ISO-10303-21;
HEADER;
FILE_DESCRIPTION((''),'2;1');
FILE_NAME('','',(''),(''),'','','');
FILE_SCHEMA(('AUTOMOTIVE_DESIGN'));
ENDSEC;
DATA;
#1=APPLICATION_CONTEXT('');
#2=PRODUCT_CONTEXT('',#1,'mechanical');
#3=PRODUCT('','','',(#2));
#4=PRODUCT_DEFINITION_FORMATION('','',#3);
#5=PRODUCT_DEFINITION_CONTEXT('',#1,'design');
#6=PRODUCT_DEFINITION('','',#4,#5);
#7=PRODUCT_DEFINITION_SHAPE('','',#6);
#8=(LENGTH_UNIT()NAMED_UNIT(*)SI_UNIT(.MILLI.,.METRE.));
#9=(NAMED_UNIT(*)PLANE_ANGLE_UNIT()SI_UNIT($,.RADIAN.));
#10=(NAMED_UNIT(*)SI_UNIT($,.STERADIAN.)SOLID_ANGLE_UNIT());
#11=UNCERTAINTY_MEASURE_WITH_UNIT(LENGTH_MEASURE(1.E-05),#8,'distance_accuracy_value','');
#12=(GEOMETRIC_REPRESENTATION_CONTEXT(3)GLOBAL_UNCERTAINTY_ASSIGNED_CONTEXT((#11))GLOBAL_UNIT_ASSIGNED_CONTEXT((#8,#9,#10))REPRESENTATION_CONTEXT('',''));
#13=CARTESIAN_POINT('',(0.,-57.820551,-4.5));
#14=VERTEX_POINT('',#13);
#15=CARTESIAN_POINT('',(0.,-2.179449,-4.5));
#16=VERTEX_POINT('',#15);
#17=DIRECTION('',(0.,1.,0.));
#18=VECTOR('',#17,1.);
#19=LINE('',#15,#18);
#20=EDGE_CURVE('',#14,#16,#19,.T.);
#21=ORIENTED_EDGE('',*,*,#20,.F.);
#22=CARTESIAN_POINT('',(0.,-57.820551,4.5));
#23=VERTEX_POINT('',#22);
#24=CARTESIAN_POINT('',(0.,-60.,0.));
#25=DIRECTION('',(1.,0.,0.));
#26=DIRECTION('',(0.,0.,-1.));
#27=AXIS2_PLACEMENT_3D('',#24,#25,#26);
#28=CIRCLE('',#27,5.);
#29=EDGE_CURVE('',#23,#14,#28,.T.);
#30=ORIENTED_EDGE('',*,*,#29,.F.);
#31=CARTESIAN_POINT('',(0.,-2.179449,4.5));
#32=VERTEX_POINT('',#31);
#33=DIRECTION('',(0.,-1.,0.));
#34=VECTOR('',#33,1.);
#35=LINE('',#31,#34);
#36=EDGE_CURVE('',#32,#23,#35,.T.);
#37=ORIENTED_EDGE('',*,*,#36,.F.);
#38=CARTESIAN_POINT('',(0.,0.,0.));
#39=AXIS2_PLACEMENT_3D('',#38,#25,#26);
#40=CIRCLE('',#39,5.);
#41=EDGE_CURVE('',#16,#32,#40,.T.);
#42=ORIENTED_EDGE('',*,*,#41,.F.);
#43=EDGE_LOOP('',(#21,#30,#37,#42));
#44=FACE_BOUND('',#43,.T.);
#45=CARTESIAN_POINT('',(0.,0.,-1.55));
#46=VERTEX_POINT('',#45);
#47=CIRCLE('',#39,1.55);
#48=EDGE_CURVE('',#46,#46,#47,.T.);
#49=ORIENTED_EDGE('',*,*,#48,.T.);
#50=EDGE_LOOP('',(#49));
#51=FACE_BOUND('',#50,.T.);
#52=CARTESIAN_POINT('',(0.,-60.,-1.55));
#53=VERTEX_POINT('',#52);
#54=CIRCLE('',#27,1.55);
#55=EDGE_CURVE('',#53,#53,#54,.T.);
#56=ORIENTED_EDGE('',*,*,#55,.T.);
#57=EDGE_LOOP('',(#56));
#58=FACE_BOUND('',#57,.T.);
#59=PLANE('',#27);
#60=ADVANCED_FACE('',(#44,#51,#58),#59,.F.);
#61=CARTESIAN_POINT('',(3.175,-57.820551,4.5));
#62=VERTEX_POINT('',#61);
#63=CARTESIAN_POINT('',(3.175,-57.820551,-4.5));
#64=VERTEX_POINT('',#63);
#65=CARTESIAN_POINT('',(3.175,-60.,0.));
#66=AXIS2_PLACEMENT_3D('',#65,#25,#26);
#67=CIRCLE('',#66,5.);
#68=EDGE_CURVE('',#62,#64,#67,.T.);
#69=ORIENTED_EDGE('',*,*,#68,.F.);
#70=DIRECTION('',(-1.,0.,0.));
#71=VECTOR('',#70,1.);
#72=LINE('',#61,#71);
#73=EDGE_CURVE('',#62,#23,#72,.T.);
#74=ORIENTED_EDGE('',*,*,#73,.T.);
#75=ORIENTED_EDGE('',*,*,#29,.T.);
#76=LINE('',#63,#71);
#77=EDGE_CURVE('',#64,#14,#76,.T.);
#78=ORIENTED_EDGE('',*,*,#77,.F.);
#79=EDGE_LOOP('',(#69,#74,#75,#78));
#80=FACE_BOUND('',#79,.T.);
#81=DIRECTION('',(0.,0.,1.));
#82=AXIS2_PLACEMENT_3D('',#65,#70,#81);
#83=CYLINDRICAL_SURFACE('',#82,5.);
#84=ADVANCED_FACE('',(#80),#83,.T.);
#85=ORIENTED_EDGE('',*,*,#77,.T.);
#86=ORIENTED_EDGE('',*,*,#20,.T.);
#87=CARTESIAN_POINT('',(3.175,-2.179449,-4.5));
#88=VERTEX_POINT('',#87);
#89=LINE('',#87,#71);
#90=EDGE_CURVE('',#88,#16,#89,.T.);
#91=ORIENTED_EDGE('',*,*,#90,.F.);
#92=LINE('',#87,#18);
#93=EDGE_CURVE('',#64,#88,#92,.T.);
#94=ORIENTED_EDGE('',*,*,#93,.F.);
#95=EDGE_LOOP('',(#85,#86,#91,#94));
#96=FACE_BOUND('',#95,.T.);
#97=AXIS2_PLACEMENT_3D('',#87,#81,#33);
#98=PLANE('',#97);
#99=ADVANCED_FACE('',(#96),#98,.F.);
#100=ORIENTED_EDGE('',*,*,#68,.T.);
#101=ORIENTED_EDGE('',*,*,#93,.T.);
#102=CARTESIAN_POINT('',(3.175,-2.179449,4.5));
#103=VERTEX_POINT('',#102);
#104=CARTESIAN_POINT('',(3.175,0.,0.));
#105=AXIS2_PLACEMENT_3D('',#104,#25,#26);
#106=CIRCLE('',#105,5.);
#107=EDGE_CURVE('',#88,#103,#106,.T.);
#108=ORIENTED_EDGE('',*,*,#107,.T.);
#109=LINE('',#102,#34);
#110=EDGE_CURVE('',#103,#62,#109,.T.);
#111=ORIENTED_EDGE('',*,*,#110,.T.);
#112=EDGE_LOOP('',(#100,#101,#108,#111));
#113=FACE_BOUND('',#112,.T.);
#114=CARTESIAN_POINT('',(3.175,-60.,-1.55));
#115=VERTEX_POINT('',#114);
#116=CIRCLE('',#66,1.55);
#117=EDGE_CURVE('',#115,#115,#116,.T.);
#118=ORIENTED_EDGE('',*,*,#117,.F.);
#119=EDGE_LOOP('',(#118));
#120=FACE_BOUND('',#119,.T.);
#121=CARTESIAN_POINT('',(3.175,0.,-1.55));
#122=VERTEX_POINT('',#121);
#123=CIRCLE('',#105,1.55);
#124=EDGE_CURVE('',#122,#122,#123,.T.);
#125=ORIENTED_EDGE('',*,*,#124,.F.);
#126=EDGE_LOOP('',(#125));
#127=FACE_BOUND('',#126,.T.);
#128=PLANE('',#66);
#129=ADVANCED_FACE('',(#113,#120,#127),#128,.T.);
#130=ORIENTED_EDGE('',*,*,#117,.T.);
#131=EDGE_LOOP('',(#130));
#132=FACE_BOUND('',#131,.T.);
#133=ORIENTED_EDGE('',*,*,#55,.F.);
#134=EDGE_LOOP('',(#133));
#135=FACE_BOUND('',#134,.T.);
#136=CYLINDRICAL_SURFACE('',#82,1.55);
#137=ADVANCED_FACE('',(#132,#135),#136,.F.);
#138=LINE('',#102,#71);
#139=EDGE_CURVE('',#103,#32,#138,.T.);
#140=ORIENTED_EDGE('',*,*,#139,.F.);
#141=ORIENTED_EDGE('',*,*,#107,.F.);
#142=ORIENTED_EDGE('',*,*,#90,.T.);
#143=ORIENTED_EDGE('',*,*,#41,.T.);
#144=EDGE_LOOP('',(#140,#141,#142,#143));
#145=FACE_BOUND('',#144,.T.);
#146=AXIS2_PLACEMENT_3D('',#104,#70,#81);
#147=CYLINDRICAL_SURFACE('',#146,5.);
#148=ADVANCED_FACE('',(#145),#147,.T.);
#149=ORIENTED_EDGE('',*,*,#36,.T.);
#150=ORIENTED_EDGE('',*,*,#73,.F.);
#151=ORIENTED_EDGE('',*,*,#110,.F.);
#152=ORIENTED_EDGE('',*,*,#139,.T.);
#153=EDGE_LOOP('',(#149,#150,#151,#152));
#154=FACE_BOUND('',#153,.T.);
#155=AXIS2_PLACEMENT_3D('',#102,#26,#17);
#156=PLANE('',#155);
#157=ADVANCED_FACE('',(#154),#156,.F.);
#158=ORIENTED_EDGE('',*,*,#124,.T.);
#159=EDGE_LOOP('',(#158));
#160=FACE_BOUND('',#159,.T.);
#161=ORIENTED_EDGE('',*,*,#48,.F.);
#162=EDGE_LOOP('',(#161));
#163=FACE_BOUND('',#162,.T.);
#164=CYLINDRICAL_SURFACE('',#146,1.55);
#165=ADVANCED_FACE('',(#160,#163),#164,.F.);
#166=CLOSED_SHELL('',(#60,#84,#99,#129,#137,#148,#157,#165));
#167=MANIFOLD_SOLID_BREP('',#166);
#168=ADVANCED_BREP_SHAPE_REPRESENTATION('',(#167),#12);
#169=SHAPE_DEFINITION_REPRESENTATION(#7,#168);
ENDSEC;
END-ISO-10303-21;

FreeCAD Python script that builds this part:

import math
import FreeCAD as App
import Part
import Sketcher

V = App.Vector
Q = App.Units.Quantity

doc = App.newDocument("Part")
body = doc.addObject("PartDesign::Body", "Body")

# Sketch on YZ plane
sketch1 = doc.addObject("Sketcher::SketchObject", "Sketch")
body.addObject(sketch1)
sketch1.AttachmentSupport = (doc.YZ_Plane, [""])
sketch1.MapMode = "FlatFace"
sketch1.addGeometry([
    Part.LineSegment(V(-57.8, -4.5, 0), V(-2.2, -4.5, 0)),  # 0
    Part.ArcOfCircle(Part.Circle(V(0, 0, 0), V(0, 0, 1), 5), math.radians(-116), math.radians(116)),  # 1
    Part.LineSegment(V(-2.2, 4.5, 0), V(-57.8, 4.5, 0)),  # 2
    Part.ArcOfCircle(Part.Circle(V(-60, 0, 0), V(0, 0, 1), 5), math.radians(64), math.radians(296)),  # 3
    Part.Circle(V(-60, 0, 0), V(0, 0, 1), 1.6),  # 4
    Part.Circle(V(0, 0, 0), V(0, 0, 1), 1.6),  # 5
], False)
sketch1.addConstraint([
    Sketcher.Constraint("Coincident", 0, 2, 1, 1),
    Sketcher.Constraint("Coincident", 1, 2, 2, 1),
    Sketcher.Constraint("Coincident", 2, 2, 3, 1),
    Sketcher.Constraint("Coincident", 3, 2, 0, 1),
    Sketcher.Constraint("Horizontal", 0),
    Sketcher.Constraint("Horizontal", 2),
    Sketcher.Constraint("Coincident", 1, 3, -1, 1),
    Sketcher.Constraint("Coincident", 5, 3, -1, 1),
    Sketcher.Constraint("Coincident", 4, 3, 3, 3),
    Sketcher.Constraint("Equal", 1, 3),
    Sketcher.Constraint("Equal", 4, 5),
    Sketcher.Constraint("Symmetric", 2, 2, 3, 2, -1),
    Sketcher.Constraint("Radius", 1, Q("5 mm")),
    Sketcher.Constraint("Diameter", 4, Q("3.1 mm")),
    Sketcher.Constraint("DistanceX", 3, 3, -1, 1, Q("60 mm")),
    Sketcher.Constraint("DistanceY", 0, 2, 1, 2, Q("9 mm")),
])
pad1 = doc.addObject("PartDesign::Pad", "Pad")
body.addObject(pad1)
pad1.Profile = sketch1
pad1.Length = 3.175

doc.recompute()
